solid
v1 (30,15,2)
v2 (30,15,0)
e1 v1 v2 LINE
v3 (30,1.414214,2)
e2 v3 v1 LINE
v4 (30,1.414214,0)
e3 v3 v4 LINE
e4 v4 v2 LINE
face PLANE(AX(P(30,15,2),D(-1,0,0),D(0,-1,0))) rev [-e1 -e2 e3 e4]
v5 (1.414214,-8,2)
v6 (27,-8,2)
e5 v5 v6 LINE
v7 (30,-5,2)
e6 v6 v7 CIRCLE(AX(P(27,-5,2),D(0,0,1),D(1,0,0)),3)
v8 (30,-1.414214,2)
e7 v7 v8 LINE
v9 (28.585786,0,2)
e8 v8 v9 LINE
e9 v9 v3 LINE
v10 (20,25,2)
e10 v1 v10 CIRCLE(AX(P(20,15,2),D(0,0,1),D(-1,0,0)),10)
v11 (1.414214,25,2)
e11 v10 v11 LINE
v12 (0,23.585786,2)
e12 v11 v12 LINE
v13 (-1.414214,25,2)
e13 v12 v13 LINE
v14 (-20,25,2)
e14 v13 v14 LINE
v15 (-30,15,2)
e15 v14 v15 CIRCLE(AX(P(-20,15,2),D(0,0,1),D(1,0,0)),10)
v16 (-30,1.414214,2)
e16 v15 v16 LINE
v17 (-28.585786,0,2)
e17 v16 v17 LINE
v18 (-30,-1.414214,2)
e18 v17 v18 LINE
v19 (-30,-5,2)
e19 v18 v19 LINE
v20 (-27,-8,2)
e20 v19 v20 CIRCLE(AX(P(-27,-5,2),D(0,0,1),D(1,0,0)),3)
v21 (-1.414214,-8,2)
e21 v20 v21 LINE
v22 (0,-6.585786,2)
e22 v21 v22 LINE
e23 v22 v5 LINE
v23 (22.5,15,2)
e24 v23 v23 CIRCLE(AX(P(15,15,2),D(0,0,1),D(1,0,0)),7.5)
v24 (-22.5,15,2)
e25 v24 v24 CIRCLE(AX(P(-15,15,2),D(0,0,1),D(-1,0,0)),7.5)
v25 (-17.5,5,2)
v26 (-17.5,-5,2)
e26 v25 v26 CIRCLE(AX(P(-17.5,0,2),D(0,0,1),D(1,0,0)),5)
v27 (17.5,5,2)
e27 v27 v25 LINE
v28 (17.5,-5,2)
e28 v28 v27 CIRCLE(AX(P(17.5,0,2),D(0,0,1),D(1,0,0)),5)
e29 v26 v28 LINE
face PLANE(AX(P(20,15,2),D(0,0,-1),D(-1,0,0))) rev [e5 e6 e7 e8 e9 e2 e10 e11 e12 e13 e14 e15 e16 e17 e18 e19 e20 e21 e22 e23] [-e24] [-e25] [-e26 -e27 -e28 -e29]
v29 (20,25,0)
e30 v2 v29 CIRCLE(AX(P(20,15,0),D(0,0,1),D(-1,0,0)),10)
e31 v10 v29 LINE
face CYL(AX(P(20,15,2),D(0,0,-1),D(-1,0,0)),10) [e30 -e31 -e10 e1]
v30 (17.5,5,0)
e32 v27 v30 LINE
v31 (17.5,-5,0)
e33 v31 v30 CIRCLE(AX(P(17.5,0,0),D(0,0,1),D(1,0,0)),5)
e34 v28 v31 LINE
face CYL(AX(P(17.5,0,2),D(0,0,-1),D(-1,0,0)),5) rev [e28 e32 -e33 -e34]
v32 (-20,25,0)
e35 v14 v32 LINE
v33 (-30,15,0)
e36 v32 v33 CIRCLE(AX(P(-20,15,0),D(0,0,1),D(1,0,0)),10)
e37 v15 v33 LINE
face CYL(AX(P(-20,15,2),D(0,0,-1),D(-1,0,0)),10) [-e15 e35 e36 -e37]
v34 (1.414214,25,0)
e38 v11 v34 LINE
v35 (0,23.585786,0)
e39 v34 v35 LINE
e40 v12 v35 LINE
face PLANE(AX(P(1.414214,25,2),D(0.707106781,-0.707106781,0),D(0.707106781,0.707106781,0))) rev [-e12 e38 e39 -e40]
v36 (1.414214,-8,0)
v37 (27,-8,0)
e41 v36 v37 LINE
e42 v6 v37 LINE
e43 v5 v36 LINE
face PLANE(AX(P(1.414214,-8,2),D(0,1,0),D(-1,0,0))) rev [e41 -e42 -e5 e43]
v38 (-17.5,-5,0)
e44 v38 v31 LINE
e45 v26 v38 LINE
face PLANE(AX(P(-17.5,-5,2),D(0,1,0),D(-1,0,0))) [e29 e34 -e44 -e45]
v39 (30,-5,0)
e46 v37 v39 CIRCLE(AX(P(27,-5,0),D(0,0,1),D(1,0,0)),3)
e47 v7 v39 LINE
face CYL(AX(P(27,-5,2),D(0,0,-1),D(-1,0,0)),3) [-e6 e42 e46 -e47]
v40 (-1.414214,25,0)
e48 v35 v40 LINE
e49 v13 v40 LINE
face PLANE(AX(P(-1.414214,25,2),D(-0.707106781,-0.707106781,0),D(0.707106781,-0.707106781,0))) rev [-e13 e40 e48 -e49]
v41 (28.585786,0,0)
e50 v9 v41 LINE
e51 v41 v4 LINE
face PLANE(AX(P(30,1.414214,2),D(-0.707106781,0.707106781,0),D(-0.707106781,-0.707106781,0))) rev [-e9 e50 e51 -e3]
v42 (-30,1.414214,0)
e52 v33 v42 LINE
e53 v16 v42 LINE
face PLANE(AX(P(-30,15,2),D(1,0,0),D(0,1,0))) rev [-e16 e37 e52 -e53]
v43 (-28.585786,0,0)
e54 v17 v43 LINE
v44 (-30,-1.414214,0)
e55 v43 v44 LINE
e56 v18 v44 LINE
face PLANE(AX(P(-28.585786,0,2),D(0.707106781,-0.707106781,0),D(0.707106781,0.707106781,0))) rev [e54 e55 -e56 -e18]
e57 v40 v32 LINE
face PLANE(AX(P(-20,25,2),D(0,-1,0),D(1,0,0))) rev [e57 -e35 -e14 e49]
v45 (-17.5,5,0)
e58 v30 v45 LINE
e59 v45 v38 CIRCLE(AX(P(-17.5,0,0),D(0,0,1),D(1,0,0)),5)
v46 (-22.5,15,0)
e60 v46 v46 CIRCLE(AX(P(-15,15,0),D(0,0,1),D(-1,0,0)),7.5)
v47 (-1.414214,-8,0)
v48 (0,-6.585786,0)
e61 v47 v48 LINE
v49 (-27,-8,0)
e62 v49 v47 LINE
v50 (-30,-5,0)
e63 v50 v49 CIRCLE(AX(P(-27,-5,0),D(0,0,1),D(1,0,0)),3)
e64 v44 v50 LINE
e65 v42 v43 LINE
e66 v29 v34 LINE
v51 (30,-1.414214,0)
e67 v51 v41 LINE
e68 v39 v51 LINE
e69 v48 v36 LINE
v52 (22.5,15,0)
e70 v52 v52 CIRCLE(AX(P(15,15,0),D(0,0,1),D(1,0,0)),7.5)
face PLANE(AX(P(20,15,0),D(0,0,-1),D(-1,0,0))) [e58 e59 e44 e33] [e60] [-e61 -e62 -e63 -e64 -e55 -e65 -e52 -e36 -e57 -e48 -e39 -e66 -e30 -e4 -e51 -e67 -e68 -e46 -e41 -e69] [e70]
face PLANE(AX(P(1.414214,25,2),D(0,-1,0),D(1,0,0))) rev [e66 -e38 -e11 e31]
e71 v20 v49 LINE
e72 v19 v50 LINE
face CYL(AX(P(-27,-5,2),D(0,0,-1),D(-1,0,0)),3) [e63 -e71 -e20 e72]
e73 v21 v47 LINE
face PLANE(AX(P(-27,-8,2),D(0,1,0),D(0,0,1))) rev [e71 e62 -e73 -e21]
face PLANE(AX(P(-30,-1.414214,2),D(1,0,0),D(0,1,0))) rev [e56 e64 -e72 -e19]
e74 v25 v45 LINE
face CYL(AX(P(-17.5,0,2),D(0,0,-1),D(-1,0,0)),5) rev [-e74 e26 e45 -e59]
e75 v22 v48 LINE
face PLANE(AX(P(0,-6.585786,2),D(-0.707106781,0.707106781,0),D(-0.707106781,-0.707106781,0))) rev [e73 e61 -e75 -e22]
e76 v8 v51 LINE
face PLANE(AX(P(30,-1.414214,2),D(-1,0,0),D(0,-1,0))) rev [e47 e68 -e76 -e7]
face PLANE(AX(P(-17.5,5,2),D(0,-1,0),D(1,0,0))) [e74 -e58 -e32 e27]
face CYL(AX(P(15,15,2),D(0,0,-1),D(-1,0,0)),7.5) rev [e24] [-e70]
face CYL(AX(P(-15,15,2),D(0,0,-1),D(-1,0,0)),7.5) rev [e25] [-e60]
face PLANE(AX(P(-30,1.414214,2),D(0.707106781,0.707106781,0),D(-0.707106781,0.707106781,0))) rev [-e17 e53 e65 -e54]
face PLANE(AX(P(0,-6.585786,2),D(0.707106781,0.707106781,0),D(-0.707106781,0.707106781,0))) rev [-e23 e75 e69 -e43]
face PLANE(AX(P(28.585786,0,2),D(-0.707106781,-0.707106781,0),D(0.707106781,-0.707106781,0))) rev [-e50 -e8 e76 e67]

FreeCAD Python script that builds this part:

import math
import FreeCAD as App
import Part
import Sketcher

V = App.Vector

doc = App.newDocument("Part")
body = doc.addObject("PartDesign::Body", "Body")

sketch1 = body.newObject("Sketcher::SketchObject", "Sketch")
sketch1.AttachmentSupport = (doc.getObject("XY_Plane"), [""])
sketch1.MapMode = "FlatFace"
sketch1.addGeometry(Part.LineSegment(V(-1.414214, 25, 0), V(-20, 25, 0)), False)
sketch1.addGeometry(Part.ArcOfCircle(Part.Circle(V(-20, 15, 0), V(0, 0, 1), 10), math.radians(90), math.radians(180)), False)
sketch1.addGeometry(Part.LineSegment(V(-30, 15, 0), V(-30, 1.414214, 0)), False)
sketch1.addGeometry(Part.LineSegment(V(-30, 1.414214, 0), V(-28.585786, 0, 0)), False)
sketch1.addGeometry(Part.LineSegment(V(-28.585786, 0, 0), V(-30, -1.414214, 0)), False)
sketch1.addGeometry(Part.LineSegment(V(-30, -1.414214, 0), V(-30, -5, 0)), False)
sketch1.addGeometry(Part.ArcOfCircle(Part.Circle(V(-27, -5, 0), V(0, 0, 1), 3), math.radians(180), math.radians(270)), False)
sketch1.addGeometry(Part.LineSegment(V(-27, -8, 0), V(-1.414214, -8, 0)), False)
sketch1.addGeometry(Part.LineSegment(V(-1.414214, -8, 0), V(0, -6.585786, 0)), False)
sketch1.addGeometry(Part.LineSegment(V(0, -6.585786, 0), V(1.414214, -8, 0)), False)
sketch1.addGeometry(Part.LineSegment(V(1.414214, -8, 0), V(27, -8, 0)), False)
sketch1.addGeometry(Part.ArcOfCircle(Part.Circle(V(27, -5, 0), V(0, 0, 1), 3), math.radians(-90), math.radians(0)), False)
sketch1.addGeometry(Part.LineSegment(V(30, -5, 0), V(30, -1.414214, 0)), False)
sketch1.addGeometry(Part.LineSegment(V(30, -1.414214, 0), V(28.585786, 0, 0)), False)
sketch1.addGeometry(Part.LineSegment(V(28.585786, 0, 0), V(30, 1.414214, 0)), False)
sketch1.addGeometry(Part.LineSegment(V(30, 1.414214, 0), V(30, 15, 0)), False)
sketch1.addGeometry(Part.ArcOfCircle(Part.Circle(V(20, 15, 0), V(0, 0, 1), 10), math.radians(0), math.radians(90)), False)
sketch1.addGeometry(Part.LineSegment(V(20, 25, 0), V(1.414214, 25, 0)), False)
sketch1.addGeometry(Part.LineSegment(V(1.414214, 25, 0), V(0, 23.585786, 0)), False)
sketch1.addGeometry(Part.LineSegment(V(0, 23.585786, 0), V(-1.414214, 25, 0)), False)
sketch1.addGeometry(Part.LineSegment(V(-17.5, 5, 0), V(17.5, 5, 0)), False)
sketch1.addGeometry(Part.ArcOfCircle(Part.Circle(V(17.5, 0, 0), V(0, 0, 1), 5), math.radians(-90), math.radians(90)), False)
sketch1.addGeometry(Part.LineSegment(V(17.5, -5, 0), V(-17.5, -5, 0)), False)
sketch1.addGeometry(Part.ArcOfCircle(Part.Circle(V(-17.5, 0, 0), V(0, 0, 1), 5), math.radians(90), math.radians(270)), False)
sketch1.addGeometry(Part.Circle(V(15, 15, 0), V(0, 0, 1), 7.5), False)
sketch1.addGeometry(Part.Circle(V(-15, 15, 0), V(0, 0, 1), 7.5), False)
sketch1.addConstraint(Sketcher.Constraint("Tangent", 0, 2, 1, 1))
sketch1.addConstraint(Sketcher.Constraint("Tangent", 1, 2, 2, 1))
sketch1.addConstraint(Sketcher.Constraint("Coincident", 2, 2, 3, 1))
sketch1.addConstraint(Sketcher.Constraint("Coincident", 3, 2, 4, 1))
sketch1.addConstraint(Sketcher.Constraint("Coincident", 4, 2, 5, 1))
sketch1.addConstraint(Sketcher.Constraint("Tangent", 5, 2, 6, 1))
sketch1.addConstraint(Sketcher.Constraint("Tangent", 6, 2, 7, 1))
sketch1.addConstraint(Sketcher.Constraint("Coincident", 7, 2, 8, 1))
sketch1.addConstraint(Sketcher.Constraint("Coincident", 8, 2, 9, 1))
sketch1.addConstraint(Sketcher.Constraint("Coincident", 9, 2, 10, 1))
sketch1.addConstraint(Sketcher.Constraint("Tangent", 10, 2, 11, 1))
sketch1.addConstraint(Sketcher.Constraint("Tangent", 11, 2, 12, 1))
sketch1.addConstraint(Sketcher.Constraint("Coincident", 12, 2, 13, 1))
sketch1.addConstraint(Sketcher.Constraint("Coincident", 13, 2, 14, 1))
sketch1.addConstraint(Sketcher.Constraint("Coincident", 14, 2, 15, 1))
sketch1.addConstraint(Sketcher.Constraint("Tangent", 15, 2, 16, 1))
sketch1.addConstraint(Sketcher.Constraint("Tangent", 16, 2, 17, 1))
sketch1.addConstraint(Sketcher.Constraint("Coincident", 17, 2, 18, 1))
sketch1.addConstraint(Sketcher.Constraint("Coincident", 18, 2, 19, 1))
sketch1.addConstraint(Sketcher.Constraint("Coincident", 19, 2, 0, 1))
sketch1.addConstraint(Sketcher.Constraint("Tangent", 20, 2, 21, 2))
sketch1.addConstraint(Sketcher.Constraint("Tangent", 21, 1, 22, 1))
sketch1.addConstraint(Sketcher.Constraint("Tangent", 22, 2, 23, 2))
sketch1.addConstraint(Sketcher.Constraint("Tangent", 23, 1, 20, 1))
sketch1.addConstraint(Sketcher.Constraint("Horizontal", 0))
sketch1.addConstraint(Sketcher.Constraint("Vertical", 2))
sketch1.addConstraint(Sketcher.Constraint("Vertical", 5))
sketch1.addConstraint(Sketcher.Constraint("Horizontal", 7))
sketch1.addConstraint(Sketcher.Constraint("Horizontal", 10))
sketch1.addConstraint(Sketcher.Constraint("Vertical", 12))
sketch1.addConstraint(Sketcher.Constraint("Vertical", 15))
sketch1.addConstraint(Sketcher.Constraint("Horizontal", 17))
sketch1.addConstraint(Sketcher.Constraint("Horizontal", 20))
sketch1.addConstraint(Sketcher.Constraint("Horizontal", 22))
sketch1.addConstraint(Sketcher.Constraint("Equal", 6, 11))
sketch1.addConstraint(Sketcher.Constraint("Equal", 1, 16))
sketch1.addConstraint(Sketcher.Constraint("Equal", 24, 25))
sketch1.addConstraint(Sketcher.Constraint("Symmetric", 21, 3, 23, 3, -1, 1))
sketch1.addConstraint(Sketcher.Constraint("Symmetric", 2, 2, 12, 2, -1, 1))
sketch1.addConstraint(Sketcher.Constraint("Symmetric", 3, 2, 13, 2, -1, 1))
sketch1.addConstraint(Sketcher.Constraint("Symmetric", 4, 2, 14, 2, -1, 1))
sketch1.addConstraint(Sketcher.Constraint("Symmetric", 6, 3, 11, 3, -2))
sketch1.addConstraint(Sketcher.Constraint("Symmetric", 24, 3, 25, 3, -2))
sketch1.addConstraint(Sketcher.Constraint("Symmetric", 17, 2, 19, 2, -2))
sketch1.addConstraint(Sketcher.Constraint("PointOnObject", 3, 2, -1))
sketch1.addConstraint(Sketcher.Constraint("PointOnObject", 8, 2, -2))
sketch1.addConstraint(Sketcher.Constraint("PointOnObject", 18, 2, -2))
sketch1.addConstraint(Sketcher.Constraint("Perpendicular", 3, 4))
sketch1.addConstraint(Sketcher.Constraint("Parallel", 4, 8))
sketch1.addConstraint(Sketcher.Constraint("Perpendicular", 8, 9))
sketch1.addConstraint(Sketcher.Constraint("Parallel", 14, 18))
sketch1.addConstraint(Sketcher.Constraint("Perpendicular", 18, 19))
sketch1.addConstraint(Sketcher.Constraint("Horizontal", 16, 3, 24, 3))
sketch1.addConstraint(Sketcher.Constraint("Horizontal", 11, 2, 21, 1))
sketch1.addConstraint(Sketcher.Constraint("Vertical", 9, 2, 17, 2))
sketch1.addConstraint(Sketcher.Constraint("Equal", 4, 8))
sketch1.addConstraint(Sketcher.Constraint("Diameter", 24, 15.0))
sketch1.addConstraint(Sketcher.Constraint("Radius", 1, 10.0))
sketch1.addConstraint(Sketcher.Constraint("Radius", 6, 3.0))
sketch1.addConstraint(Sketcher.Constraint("Radius", 21, 5.0))
sketch1.addConstraint(Sketcher.Constraint("DistanceX", 20, 1, 20, 2, 35.0))
sketch1.addConstraint(Sketcher.Constraint("Distance", 3, 2.0))
sketch1.addConstraint(Sketcher.Constraint("DistanceX", 1, 3, -1, 1, 20.0))
sketch1.addConstraint(Sketcher.Constraint("DistanceY", -1, 1, 1, 3, 15.0))
sketch1.addConstraint(Sketcher.Constraint("DistanceX", -1, 1, 24, 3, 15.0))
pad1 = body.newObject("PartDesign::Pad", "Pad")
pad1.Profile = sketch1
pad1.Length = 2

doc.recompute()
